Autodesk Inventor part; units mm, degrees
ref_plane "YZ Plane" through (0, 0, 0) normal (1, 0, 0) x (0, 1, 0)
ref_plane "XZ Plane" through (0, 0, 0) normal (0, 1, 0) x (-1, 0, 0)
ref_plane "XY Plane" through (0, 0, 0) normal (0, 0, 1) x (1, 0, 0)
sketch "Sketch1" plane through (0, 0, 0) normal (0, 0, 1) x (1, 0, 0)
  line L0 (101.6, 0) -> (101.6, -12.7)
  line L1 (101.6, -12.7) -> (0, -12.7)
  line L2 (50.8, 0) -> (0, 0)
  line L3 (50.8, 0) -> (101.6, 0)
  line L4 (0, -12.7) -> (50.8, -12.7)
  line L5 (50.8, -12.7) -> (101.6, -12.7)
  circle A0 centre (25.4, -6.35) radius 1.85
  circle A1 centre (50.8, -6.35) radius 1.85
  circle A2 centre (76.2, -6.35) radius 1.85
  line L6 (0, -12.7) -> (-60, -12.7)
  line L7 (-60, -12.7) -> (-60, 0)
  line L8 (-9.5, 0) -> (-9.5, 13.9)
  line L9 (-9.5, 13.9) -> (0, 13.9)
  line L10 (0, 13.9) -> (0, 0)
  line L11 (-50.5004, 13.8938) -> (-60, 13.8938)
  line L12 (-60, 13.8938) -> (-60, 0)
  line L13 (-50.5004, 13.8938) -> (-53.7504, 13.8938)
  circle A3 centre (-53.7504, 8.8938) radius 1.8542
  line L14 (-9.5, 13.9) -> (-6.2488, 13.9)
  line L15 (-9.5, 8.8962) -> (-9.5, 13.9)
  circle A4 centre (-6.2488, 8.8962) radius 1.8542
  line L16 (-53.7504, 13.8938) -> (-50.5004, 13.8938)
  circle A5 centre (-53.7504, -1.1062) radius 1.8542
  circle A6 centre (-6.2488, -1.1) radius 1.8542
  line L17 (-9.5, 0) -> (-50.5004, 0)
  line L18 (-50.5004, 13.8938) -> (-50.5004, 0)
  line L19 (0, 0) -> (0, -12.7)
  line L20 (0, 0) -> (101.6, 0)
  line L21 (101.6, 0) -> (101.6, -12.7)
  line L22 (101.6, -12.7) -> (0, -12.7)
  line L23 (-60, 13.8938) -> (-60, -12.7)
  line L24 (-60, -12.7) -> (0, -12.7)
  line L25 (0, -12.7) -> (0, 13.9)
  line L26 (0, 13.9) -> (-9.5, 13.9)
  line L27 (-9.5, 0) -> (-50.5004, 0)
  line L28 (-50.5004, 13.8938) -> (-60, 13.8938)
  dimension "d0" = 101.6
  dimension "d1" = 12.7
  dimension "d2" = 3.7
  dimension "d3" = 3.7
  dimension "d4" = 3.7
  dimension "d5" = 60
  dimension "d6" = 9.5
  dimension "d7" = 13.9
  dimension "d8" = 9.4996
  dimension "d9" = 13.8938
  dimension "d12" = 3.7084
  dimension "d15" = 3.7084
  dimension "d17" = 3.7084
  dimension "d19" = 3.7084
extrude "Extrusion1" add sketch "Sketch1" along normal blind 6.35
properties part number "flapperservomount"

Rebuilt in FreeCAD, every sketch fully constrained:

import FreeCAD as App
import Part
import Sketcher
from FreeCAD import Vector
Q = App.Units.Quantity

doc = App.newDocument("Part")
body = doc.addObject("PartDesign::Body", "Body")

sketch1 = body.newObject("Sketcher::SketchObject", "Sketch")
sketch1.AttachmentSupport = (doc.getObject("XY_Plane"), [""])
sketch1.MapMode = "FlatFace"
sketch1.addGeometry([
    Part.LineSegment(Vector(101.6, -12.7, 0), Vector(101.6, 0, 0)),
    Part.LineSegment(Vector(101.6, 0, 0), Vector(0, 0, 0)),
    Part.LineSegment(Vector(0, 0, 0), Vector(0, 13.9, 0)),
    Part.LineSegment(Vector(0, 13.9, 0), Vector(-9.5, 13.9, 0)),
    Part.LineSegment(Vector(-9.5, 13.9, 0), Vector(-9.5, 0, 0)),
    Part.LineSegment(Vector(-9.5, 0, 0), Vector(-50.5004, 0, 0)),
    Part.LineSegment(Vector(-50.5004, 0, 0), Vector(-50.5004, 13.8938, 0)),
    Part.LineSegment(Vector(-50.5004, 13.8938, 0), Vector(-60, 13.8938, 0)),
    Part.LineSegment(Vector(-60, 13.8938, 0), Vector(-60, -12.7, 0)),
    Part.LineSegment(Vector(-60, -12.7, 0), Vector(101.6, -12.7, 0)),
    Part.Circle(Vector(25.4, -6.35, 0), Vector(0, 0, 1), 1.85),
    Part.Circle(Vector(50.8, -6.35, 0), Vector(0, 0, 1), 1.85),
    Part.Circle(Vector(76.2, -6.35, 0), Vector(0, 0, 1), 1.85),
    Part.Circle(Vector(-6.2488, 8.8962, 0), Vector(0, 0, 1), 1.8542),
    Part.Circle(Vector(-53.7504, -1.1062, 0), Vector(0, 0, 1), 1.8542),
    Part.Circle(Vector(-6.2488, -1.1, 0), Vector(0, 0, 1), 1.8542),
    Part.Circle(Vector(-53.7504, 8.8938, 0), Vector(0, 0, 1), 1.8542),
], False)
sketch1.addConstraint([
    Sketcher.Constraint("Coincident", 0, 2, 1, 1),
    Sketcher.Constraint("Coincident", 1, 2, 2, 1),
    Sketcher.Constraint("Coincident", 2, 2, 3, 1),
    Sketcher.Constraint("Coincident", 3, 2, 4, 1),
    Sketcher.Constraint("Coincident", 4, 2, 5, 1),
    Sketcher.Constraint("Coincident", 5, 2, 6, 1),
    Sketcher.Constraint("Coincident", 6, 2, 7, 1),
    Sketcher.Constraint("Coincident", 7, 2, 8, 1),
    Sketcher.Constraint("Coincident", 8, 2, 9, 1),
    Sketcher.Constraint("Coincident", 9, 2, 0, 1),
    Sketcher.Constraint("Vertical", 0),
    Sketcher.Constraint("Horizontal", 1),
    Sketcher.Constraint("Vertical", 2),
    Sketcher.Constraint("Horizontal", 3),
    Sketcher.Constraint("Vertical", 4),
    Sketcher.Constraint("Horizontal", 5),
    Sketcher.Constraint("Vertical", 6),
    Sketcher.Constraint("Horizontal", 7),
    Sketcher.Constraint("Vertical", 8),
    Sketcher.Constraint("Horizontal", 9),
    Sketcher.Constraint("Coincident", 1, 2, -1, 1),
    Sketcher.Constraint("Equal", 10, 11),
    Sketcher.Constraint("Equal", 11, 12),
    Sketcher.Constraint("Equal", 13, 14),
    Sketcher.Constraint("Equal", 14, 15),
    Sketcher.Constraint("Equal", 15, 16),
    Sketcher.Constraint("PointOnObject", 4, 2, -1),
    Sketcher.Constraint("Horizontal", 10, 3, 11, 3),
    Sketcher.Constraint("Horizontal", 11, 3, 12, 3),
    Sketcher.Constraint("Vertical", 13, 3, 15, 3),
    Sketcher.Constraint("Vertical", 14, 3, 16, 3),
    Sketcher.Constraint("DistanceX", 1, 2, 1, 1, Q("4 in")),
    Sketcher.Constraint("Diameter", 13, Q("0.146 in")),
    Sketcher.Constraint("DistanceY", 0, 1, 0, 2, Q("0.5 in")),
    Sketcher.Constraint("Diameter", 10, 3.7),
    Sketcher.Constraint("DistanceX", 7, 2, 7, 1, Q("0.374 in")),
    Sketcher.Constraint("DistanceY", 6, 1, 6, 2, Q("0.547 in")),
    Sketcher.Constraint("DistanceX", -1, 1, 10, 3, Q("1 in")),
    Sketcher.Constraint("DistanceX", -1, 1, 11, 3, Q("2 in")),
    Sketcher.Constraint("DistanceX", -1, 1, 12, 3, Q("3 in")),
    Sketcher.Constraint("DistanceX", 3, 2, 3, 1, 9.5),
    Sketcher.Constraint("DistanceY", 2, 1, 2, 2, 13.9),
    Sketcher.Constraint("DistanceX", 7, 2, -1, 1, Q("2.3622 in")),
    Sketcher.Constraint("DistanceY", 10, 3, -1, 1, Q("0.25 in")),
    Sketcher.Constraint("DistanceY", 13, 3, 2, 2, Q("0.197 in")),
    Sketcher.Constraint("DistanceX", 3, 2, 13, 3, Q("0.128 in")),
    Sketcher.Constraint("DistanceY", 15, 3, -1, 1, Q("0.0433 in")),
    Sketcher.Constraint("DistanceY", 14, 3, 13, 3, Q("0.3938 in")),
    Sketcher.Constraint("DistanceY", 14, 3, 16, 3, Q("0.3937 in")),
    Sketcher.Constraint("DistanceX", 14, 3, -1, 1, 53.7504),
])
pad1 = body.newObject("PartDesign::Pad", "Pad")
pad1.Profile = sketch1
pad1.Length = Q("0.25 in")

doc.recompute()
